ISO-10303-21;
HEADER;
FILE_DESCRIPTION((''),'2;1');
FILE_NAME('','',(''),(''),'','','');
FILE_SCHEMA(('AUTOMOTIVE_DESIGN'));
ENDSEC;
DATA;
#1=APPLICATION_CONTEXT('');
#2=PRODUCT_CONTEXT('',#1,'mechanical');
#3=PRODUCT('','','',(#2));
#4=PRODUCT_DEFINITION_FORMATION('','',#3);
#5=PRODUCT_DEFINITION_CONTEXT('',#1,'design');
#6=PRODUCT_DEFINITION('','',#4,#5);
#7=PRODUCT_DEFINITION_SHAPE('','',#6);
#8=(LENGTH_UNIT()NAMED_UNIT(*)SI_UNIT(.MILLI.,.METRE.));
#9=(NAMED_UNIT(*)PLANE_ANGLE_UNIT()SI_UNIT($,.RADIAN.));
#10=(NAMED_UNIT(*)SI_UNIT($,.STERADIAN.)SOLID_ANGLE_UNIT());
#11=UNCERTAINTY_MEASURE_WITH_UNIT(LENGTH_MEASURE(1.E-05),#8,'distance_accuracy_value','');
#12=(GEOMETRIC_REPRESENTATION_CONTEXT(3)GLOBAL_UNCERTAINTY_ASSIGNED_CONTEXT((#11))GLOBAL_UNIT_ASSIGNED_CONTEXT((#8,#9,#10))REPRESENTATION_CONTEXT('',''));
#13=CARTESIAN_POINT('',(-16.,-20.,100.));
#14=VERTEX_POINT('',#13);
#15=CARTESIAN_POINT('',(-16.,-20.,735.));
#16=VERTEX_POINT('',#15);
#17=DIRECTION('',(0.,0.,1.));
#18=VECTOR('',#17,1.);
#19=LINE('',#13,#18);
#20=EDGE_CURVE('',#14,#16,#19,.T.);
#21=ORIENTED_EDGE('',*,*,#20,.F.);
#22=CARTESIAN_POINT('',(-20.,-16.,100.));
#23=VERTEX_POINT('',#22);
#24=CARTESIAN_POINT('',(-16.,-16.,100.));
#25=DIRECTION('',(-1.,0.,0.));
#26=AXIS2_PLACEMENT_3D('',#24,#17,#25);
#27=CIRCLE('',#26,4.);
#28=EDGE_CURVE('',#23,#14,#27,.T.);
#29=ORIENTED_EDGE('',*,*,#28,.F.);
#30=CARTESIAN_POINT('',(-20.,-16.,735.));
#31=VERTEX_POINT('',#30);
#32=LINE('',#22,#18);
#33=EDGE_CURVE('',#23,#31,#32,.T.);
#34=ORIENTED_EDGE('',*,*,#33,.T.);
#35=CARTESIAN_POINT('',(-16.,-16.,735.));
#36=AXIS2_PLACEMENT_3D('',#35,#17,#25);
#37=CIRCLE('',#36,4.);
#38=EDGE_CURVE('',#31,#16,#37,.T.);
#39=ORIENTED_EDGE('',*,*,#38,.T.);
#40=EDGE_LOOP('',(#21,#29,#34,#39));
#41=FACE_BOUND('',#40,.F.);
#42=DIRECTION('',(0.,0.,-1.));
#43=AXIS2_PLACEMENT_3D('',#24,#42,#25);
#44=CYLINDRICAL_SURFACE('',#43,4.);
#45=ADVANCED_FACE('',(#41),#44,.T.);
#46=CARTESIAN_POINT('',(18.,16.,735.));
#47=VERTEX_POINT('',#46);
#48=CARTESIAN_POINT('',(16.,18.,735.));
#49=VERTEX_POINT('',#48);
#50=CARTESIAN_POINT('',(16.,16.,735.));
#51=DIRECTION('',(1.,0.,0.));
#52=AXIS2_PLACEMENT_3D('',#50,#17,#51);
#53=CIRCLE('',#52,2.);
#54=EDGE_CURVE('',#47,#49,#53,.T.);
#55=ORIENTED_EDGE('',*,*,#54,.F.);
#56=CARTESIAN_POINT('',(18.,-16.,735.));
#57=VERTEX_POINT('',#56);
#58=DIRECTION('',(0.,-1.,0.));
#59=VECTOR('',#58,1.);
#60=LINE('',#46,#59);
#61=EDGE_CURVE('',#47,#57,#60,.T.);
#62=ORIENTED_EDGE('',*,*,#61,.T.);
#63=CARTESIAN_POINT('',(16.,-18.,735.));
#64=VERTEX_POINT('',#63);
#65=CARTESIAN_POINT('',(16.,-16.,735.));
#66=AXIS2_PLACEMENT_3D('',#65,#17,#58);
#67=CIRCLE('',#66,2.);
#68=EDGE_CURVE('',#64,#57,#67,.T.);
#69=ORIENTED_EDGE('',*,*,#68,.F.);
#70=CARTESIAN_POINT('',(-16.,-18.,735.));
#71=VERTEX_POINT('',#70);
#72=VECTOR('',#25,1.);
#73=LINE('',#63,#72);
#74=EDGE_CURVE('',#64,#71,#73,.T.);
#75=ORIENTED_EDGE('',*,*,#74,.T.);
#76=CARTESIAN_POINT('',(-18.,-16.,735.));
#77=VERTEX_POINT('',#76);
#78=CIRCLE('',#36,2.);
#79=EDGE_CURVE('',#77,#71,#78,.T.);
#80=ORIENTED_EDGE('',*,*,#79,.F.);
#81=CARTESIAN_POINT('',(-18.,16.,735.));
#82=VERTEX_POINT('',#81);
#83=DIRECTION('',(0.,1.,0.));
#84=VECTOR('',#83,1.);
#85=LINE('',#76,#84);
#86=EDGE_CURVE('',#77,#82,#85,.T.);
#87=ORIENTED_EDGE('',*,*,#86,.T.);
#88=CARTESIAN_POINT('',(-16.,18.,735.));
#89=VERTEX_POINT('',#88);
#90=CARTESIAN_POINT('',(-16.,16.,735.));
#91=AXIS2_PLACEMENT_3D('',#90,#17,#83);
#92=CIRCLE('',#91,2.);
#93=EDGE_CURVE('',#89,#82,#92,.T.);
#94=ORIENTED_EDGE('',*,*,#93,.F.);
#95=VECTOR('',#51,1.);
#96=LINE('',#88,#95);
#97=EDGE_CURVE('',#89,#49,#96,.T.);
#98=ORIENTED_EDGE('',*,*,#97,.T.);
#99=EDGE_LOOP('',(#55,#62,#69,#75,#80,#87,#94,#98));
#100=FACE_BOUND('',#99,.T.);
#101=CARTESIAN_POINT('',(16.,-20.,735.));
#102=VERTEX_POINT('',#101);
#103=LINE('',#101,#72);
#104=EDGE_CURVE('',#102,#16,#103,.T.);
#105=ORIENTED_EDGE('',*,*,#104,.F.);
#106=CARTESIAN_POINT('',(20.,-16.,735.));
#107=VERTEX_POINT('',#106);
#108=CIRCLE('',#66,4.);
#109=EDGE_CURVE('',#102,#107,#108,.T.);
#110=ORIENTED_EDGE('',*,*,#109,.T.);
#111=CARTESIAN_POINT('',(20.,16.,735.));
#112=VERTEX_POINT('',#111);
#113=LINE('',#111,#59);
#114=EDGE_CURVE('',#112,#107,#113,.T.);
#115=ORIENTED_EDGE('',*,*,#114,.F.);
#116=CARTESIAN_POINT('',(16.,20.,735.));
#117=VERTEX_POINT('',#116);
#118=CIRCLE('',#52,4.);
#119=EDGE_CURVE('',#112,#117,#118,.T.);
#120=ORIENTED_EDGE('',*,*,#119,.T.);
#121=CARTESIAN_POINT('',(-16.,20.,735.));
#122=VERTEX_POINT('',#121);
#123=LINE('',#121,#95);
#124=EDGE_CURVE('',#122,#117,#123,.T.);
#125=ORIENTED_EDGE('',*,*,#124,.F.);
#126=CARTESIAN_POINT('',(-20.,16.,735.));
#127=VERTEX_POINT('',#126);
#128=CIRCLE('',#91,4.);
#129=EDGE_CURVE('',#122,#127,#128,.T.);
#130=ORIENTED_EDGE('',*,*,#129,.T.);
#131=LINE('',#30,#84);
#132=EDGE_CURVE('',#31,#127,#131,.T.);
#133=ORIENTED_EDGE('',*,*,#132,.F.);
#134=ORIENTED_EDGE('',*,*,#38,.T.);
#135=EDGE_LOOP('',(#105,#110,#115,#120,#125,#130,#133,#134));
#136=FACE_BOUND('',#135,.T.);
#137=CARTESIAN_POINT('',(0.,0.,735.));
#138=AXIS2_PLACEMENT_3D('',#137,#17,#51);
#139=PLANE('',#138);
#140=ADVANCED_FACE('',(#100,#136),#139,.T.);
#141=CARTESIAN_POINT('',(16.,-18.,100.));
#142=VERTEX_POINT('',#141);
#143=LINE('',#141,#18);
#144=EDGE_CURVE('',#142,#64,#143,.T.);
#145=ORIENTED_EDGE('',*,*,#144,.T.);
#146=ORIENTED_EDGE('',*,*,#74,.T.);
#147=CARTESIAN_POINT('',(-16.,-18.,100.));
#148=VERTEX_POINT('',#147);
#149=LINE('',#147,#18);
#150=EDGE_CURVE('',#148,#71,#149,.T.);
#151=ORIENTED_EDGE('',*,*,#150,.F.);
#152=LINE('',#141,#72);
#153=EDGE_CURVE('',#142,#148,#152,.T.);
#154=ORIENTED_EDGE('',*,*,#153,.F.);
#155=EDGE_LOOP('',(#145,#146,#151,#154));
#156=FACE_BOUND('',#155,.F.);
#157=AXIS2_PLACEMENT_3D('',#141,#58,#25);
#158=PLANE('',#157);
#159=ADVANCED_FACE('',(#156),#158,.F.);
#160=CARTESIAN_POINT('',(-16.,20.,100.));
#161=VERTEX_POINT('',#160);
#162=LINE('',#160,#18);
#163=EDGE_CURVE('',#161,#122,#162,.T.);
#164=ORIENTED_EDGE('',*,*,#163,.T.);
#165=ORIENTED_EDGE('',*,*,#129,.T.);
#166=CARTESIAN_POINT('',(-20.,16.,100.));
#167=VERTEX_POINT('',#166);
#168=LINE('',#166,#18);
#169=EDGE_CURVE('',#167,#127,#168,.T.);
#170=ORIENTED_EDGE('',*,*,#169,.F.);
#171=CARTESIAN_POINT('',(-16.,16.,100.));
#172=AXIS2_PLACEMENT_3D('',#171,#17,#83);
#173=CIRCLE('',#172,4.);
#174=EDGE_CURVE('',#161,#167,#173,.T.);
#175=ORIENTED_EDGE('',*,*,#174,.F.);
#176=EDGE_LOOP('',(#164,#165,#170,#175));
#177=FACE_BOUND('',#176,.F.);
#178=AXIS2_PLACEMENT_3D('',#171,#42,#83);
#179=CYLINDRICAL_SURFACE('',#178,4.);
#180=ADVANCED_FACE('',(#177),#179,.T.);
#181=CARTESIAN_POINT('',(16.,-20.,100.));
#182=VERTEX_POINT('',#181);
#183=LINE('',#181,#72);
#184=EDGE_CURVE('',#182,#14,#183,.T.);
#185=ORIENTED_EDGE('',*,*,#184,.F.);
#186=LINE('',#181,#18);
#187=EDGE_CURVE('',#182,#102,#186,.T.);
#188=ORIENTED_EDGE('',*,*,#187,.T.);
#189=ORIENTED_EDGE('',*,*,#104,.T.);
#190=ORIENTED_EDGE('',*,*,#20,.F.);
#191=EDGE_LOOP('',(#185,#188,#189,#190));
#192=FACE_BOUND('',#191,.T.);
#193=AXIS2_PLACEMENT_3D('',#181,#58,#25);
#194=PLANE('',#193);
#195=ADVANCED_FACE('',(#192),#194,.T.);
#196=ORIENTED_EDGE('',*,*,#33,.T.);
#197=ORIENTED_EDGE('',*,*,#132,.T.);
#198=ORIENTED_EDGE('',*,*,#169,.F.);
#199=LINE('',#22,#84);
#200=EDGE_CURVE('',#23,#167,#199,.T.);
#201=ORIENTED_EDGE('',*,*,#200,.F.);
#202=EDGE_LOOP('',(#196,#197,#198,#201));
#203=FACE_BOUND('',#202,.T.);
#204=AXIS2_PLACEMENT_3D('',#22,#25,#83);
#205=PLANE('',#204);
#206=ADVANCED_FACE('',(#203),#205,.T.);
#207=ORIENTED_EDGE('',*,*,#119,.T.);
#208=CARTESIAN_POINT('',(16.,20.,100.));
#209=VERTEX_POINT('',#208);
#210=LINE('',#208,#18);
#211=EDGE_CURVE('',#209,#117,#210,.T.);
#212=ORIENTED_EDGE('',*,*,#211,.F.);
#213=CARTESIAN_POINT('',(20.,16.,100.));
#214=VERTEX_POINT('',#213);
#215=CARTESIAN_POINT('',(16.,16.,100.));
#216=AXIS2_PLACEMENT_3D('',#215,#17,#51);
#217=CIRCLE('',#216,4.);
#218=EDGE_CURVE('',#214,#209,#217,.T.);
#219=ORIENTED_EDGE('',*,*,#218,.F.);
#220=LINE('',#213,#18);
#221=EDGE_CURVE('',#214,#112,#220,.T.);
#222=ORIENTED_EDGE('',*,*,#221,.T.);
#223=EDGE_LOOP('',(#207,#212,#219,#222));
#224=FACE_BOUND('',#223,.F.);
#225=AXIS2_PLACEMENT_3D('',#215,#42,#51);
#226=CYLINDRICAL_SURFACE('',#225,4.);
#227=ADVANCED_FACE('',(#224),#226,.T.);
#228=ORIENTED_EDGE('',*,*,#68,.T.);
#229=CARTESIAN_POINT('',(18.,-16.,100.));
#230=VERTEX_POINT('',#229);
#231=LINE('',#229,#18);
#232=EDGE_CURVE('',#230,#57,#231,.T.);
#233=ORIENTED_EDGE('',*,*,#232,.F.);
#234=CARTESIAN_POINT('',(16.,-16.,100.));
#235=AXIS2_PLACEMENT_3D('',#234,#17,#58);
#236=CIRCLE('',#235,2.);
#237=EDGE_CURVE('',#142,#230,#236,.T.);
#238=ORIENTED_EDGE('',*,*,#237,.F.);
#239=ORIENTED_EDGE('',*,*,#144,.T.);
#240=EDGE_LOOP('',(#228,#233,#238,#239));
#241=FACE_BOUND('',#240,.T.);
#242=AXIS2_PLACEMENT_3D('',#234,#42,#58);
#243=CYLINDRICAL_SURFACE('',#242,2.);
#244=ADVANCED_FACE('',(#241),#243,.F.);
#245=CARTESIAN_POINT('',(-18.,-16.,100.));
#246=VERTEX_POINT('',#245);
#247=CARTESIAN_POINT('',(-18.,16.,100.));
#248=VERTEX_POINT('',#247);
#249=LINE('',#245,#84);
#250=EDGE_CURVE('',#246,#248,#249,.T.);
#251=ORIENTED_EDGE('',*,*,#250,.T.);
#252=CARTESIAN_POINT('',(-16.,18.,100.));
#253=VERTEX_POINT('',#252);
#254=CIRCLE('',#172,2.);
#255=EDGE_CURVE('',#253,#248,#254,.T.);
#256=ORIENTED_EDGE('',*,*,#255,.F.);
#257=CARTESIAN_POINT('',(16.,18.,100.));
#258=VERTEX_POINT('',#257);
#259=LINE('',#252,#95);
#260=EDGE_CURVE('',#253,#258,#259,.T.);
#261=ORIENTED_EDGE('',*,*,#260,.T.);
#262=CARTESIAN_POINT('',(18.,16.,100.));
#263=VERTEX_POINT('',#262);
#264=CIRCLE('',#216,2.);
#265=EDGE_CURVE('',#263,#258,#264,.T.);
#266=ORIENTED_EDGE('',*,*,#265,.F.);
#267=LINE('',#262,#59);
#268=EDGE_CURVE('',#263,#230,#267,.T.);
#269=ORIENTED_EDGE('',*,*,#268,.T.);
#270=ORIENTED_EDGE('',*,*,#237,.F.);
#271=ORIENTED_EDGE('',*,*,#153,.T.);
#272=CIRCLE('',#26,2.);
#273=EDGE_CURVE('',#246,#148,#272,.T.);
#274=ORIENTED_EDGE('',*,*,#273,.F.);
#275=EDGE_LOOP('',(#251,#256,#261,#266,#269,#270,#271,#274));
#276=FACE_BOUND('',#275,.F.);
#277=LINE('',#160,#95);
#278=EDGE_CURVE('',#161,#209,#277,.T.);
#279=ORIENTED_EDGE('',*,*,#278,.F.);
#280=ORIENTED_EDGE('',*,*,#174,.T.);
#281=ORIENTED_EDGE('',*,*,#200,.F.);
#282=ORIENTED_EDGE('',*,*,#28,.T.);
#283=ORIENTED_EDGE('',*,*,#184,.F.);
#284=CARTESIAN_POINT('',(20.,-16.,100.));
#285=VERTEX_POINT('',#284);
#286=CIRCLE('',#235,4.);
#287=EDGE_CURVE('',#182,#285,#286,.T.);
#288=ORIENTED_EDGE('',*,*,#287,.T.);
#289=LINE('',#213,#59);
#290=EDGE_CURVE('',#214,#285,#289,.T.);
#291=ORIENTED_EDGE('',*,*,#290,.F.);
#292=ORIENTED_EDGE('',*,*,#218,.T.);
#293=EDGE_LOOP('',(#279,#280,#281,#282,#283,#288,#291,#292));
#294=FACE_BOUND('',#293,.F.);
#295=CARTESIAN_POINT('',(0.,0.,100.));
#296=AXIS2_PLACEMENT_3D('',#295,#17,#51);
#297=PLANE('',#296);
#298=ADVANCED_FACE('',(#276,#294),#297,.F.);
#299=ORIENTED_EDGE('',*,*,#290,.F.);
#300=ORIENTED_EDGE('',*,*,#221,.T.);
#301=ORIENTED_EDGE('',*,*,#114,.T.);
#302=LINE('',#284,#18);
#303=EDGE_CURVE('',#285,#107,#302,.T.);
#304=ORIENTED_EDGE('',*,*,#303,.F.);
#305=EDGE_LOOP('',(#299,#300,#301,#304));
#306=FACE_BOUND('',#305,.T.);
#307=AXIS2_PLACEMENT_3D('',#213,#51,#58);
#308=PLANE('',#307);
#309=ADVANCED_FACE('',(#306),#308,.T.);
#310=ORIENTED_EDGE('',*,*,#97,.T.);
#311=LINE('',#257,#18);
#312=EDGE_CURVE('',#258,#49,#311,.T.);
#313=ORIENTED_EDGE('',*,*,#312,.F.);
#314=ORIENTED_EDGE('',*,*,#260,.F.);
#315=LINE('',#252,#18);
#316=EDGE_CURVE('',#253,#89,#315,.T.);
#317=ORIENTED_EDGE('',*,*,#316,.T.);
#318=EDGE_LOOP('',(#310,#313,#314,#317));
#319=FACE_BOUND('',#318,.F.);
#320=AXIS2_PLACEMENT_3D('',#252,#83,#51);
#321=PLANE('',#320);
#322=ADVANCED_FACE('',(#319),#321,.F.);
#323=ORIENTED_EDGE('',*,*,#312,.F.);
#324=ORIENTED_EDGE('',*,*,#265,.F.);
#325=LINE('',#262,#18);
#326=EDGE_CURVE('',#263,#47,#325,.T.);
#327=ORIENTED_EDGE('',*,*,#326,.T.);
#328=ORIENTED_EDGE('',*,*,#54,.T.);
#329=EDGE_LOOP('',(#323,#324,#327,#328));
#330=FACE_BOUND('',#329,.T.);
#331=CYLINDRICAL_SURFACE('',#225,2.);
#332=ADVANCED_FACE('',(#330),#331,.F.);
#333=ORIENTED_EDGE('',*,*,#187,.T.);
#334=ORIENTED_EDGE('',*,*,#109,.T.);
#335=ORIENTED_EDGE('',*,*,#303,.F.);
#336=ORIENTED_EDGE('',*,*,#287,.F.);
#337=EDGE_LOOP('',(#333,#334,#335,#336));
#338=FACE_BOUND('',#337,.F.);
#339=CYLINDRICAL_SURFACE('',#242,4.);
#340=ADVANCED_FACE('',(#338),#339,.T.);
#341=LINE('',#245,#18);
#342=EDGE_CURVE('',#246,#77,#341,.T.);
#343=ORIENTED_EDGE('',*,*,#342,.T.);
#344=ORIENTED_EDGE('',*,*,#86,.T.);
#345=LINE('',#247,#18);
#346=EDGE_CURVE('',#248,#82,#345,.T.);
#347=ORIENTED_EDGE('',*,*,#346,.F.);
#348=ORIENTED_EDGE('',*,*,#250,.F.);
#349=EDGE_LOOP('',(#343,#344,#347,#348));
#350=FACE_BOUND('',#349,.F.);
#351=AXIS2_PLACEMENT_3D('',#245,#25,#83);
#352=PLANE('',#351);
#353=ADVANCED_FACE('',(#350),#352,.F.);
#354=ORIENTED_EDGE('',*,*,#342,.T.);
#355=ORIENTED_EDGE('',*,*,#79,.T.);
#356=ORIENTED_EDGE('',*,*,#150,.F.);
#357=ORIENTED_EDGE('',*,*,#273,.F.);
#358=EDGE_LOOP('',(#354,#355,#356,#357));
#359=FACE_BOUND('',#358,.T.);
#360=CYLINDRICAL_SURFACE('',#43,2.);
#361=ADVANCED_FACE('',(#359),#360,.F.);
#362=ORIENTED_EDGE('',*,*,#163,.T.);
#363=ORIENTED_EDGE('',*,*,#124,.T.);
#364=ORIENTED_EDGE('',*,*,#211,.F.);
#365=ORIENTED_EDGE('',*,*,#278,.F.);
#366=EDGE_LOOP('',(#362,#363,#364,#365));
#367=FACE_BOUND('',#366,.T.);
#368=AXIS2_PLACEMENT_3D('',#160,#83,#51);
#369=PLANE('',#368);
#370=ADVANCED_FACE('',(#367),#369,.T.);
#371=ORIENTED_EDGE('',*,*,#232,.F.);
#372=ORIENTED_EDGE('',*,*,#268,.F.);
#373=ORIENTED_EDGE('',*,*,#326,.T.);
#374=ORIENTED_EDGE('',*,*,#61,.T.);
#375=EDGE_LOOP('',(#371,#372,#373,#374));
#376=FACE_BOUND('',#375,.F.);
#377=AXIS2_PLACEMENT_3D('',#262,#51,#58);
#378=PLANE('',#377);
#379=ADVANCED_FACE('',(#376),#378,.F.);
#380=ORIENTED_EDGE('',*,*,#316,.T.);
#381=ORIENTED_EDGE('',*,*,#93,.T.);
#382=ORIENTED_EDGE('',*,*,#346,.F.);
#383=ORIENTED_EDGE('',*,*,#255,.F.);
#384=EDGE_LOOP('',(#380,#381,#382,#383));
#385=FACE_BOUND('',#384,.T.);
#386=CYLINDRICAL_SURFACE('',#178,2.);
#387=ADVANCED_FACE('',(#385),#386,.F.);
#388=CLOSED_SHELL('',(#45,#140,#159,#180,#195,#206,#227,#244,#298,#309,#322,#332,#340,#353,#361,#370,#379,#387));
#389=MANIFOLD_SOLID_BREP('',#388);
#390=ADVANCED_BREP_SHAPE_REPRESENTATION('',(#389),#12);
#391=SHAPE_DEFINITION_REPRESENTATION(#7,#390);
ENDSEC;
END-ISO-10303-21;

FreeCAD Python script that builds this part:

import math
import FreeCAD as App
import Part
import Sketcher
Q = App.Units.Quantity

doc = App.newDocument("Part")
body = doc.addObject("PartDesign::Body", "Body")

# Sketch on XY plane
sketch1 = body.newObject("Sketcher::SketchObject", "Sketch")
sketch1.AttachmentSupport = (doc.getObject("XY_Plane"), [""])
sketch1.MapMode = "FlatFace"
sketch1.AttachmentOffset = App.Placement(App.Vector(0, 0, 100), App.Rotation())
sketch1.addGeometry([
    Part.LineSegment(App.Vector(-20, 16, 0), App.Vector(-20, -16, 0)),  # 0
    Part.ArcOfCircle(Part.Circle(App.Vector(-16, -16, 0), App.Vector(0, 0, 1), 4), math.radians(180), math.radians(270)),  # 1
    Part.LineSegment(App.Vector(-16, -20, 0), App.Vector(16, -20, 0)),  # 2
    Part.ArcOfCircle(Part.Circle(App.Vector(16, -16, 0), App.Vector(0, 0, 1), 4), math.radians(-90), math.radians(0)),  # 3
    Part.LineSegment(App.Vector(20, -16, 0), App.Vector(20, 16, 0)),  # 4
    Part.ArcOfCircle(Part.Circle(App.Vector(16, 16, 0), App.Vector(0, 0, 1), 4), math.radians(0), math.radians(90)),  # 5
    Part.LineSegment(App.Vector(16, 20, 0), App.Vector(-16, 20, 0)),  # 6
    Part.ArcOfCircle(Part.Circle(App.Vector(-16, 16, 0), App.Vector(0, 0, 1), 4), math.radians(90), math.radians(180)),  # 7
    Part.ArcOfCircle(Part.Circle(App.Vector(-16, 16, 0), App.Vector(0, 0, 1), 2), math.radians(90), math.radians(180)),  # 8
    Part.LineSegment(App.Vector(-16, 18, 0), App.Vector(16, 18, 0)),  # 9
    Part.ArcOfCircle(Part.Circle(App.Vector(16, 16, 0), App.Vector(0, 0, 1), 2), math.radians(0), math.radians(90)),  # 10
    Part.LineSegment(App.Vector(18, 16, 0), App.Vector(18, -16, 0)),  # 11
    Part.ArcOfCircle(Part.Circle(App.Vector(16, -16, 0), App.Vector(0, 0, 1), 2), math.radians(-90), math.radians(0)),  # 12
    Part.LineSegment(App.Vector(16, -18, 0), App.Vector(-16, -18, 0)),  # 13
    Part.ArcOfCircle(Part.Circle(App.Vector(-16, -16, 0), App.Vector(0, 0, 1), 2), math.radians(180), math.radians(270)),  # 14
    Part.LineSegment(App.Vector(-18, -16, 0), App.Vector(-18, 16, 0)),  # 15
], False)
sketch1.addConstraint([
    Sketcher.Constraint("Tangent", 0, 2, 1, 1),
    Sketcher.Constraint("Tangent", 1, 2, 2, 1),
    Sketcher.Constraint("Tangent", 2, 2, 3, 1),
    Sketcher.Constraint("Tangent", 3, 2, 4, 1),
    Sketcher.Constraint("Tangent", 4, 2, 5, 1),
    Sketcher.Constraint("Tangent", 5, 2, 6, 1),
    Sketcher.Constraint("Tangent", 6, 2, 7, 1),
    Sketcher.Constraint("Tangent", 7, 2, 0, 1),
    Sketcher.Constraint("Tangent", 8, 1, 9, 1),
    Sketcher.Constraint("Tangent", 9, 2, 10, 2),
    Sketcher.Constraint("Tangent", 10, 1, 11, 1),
    Sketcher.Constraint("Tangent", 11, 2, 12, 2),
    Sketcher.Constraint("Tangent", 12, 1, 13, 1),
    Sketcher.Constraint("Tangent", 13, 2, 14, 2),
    Sketcher.Constraint("Tangent", 14, 1, 15, 1),
    Sketcher.Constraint("Tangent", 15, 2, 8, 2),
    Sketcher.Constraint("Vertical", 0),
    Sketcher.Constraint("Horizontal", 2),
    Sketcher.Constraint("Vertical", 4),
    Sketcher.Constraint("Horizontal", 6),
    Sketcher.Constraint("Horizontal", 9),
    Sketcher.Constraint("Vertical", 11),
    Sketcher.Constraint("Horizontal", 13),
    Sketcher.Constraint("Vertical", 15),
    Sketcher.Constraint("Coincident", 8, 3, 7, 3),
    Sketcher.Constraint("Coincident", 10, 3, 5, 3),
    Sketcher.Constraint("Coincident", 12, 3, 3, 3),
    Sketcher.Constraint("Equal", 1, 3),
    Sketcher.Constraint("Equal", 3, 5),
    Sketcher.Constraint("Equal", 5, 7),
    Sketcher.Constraint("Equal", 12, 14),
    Sketcher.Constraint("Symmetric", 1, 3, 5, 3, -1, 1),
    Sketcher.Constraint("Equal", 13, 0),
    Sketcher.Constraint("Radius", 1, Q("4 mm")),
    Sketcher.Constraint("Radius", 8, Q("2 mm")),
    Sketcher.Constraint("DistanceX", 0, 2, -1, 1, Q("20 mm")),
])
pad1 = body.newObject("PartDesign::Pad", "Pad")
pad1.Profile = sketch1
pad1.Length = 635

doc.recompute()
